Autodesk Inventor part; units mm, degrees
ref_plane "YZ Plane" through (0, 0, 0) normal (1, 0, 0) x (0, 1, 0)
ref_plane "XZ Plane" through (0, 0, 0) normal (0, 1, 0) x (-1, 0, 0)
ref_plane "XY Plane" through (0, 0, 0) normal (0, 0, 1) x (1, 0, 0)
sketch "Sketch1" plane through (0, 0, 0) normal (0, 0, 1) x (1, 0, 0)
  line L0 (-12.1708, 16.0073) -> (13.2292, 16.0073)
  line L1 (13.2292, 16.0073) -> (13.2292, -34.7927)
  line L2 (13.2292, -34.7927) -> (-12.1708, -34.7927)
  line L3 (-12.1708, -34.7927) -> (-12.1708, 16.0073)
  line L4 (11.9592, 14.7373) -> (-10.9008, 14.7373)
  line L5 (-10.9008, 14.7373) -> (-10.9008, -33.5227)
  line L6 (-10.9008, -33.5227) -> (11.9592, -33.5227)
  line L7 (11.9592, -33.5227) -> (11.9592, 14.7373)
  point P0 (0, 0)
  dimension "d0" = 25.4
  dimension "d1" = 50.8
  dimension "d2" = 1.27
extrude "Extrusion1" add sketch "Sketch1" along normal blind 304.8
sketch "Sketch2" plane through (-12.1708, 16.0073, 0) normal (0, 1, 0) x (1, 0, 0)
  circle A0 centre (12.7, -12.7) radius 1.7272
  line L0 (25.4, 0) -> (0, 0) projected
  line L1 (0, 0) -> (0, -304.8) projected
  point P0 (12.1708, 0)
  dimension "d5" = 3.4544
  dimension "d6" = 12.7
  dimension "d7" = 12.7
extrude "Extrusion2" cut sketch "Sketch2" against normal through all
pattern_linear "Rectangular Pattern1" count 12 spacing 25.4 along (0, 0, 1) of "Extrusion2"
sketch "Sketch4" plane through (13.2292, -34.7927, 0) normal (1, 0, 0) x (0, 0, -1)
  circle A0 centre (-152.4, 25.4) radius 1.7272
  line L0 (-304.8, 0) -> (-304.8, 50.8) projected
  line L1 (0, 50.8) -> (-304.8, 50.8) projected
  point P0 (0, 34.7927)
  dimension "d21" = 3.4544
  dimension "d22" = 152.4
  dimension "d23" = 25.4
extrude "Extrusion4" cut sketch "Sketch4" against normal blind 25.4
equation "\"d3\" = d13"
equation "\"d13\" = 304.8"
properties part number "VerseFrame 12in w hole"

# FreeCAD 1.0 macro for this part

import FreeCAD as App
import Part
import Sketcher
Q = App.Units.Quantity


def add_polygon(sketch, points):
    """Adds a closed chain of lines whose ends are joined by coincident constraints."""
    first, n = sketch.GeometryCount, len(points)
    for a, b in zip(points, points[1:] + points[:1]):
        sketch.addGeometry(Part.LineSegment(App.Vector(*a, 0), App.Vector(*b, 0)), False)
    for i in range(n):
        sketch.addConstraint(Sketcher.Constraint("Coincident", first + i, 2, first + (i + 1) % n, 1))

doc = App.newDocument("Part")
body = doc.addObject("PartDesign::Body", "Body")

# Sketch on XY plane
sketch1 = body.newObject("Sketcher::SketchObject", "Sketch")
sketch1.AttachmentSupport = (doc.getObject("XY_Plane"), [""])
sketch1.MapMode = "FlatFace"
add_polygon(sketch1, [(13.2292, 16.0073), (-12.1708, 16.0073), (-12.1708, -34.7927), (13.2292, -34.7927)])  # lines 0-3
add_polygon(sketch1, [(-10.9008, 14.7373), (11.9592, 14.7373), (11.9592, -33.5227), (-10.9008, -33.5227)])  # lines 4-7
sketch1.addConstraint(Sketcher.Constraint("Horizontal", 0))
sketch1.addConstraint(Sketcher.Constraint("Vertical", 1))
sketch1.addConstraint(Sketcher.Constraint("Horizontal", 2))
sketch1.addConstraint(Sketcher.Constraint("Vertical", 3))
sketch1.addConstraint(Sketcher.Constraint("Horizontal", 4))
sketch1.addConstraint(Sketcher.Constraint("Vertical", 5))
sketch1.addConstraint(Sketcher.Constraint("Horizontal", 6))
sketch1.addConstraint(Sketcher.Constraint("Vertical", 7))
sketch1.addConstraint(Sketcher.Constraint("DistanceX", 0, 2, 0, 1, Q("1 in")))
sketch1.addConstraint(Sketcher.Constraint("DistanceY", 1, 2, 1, 1, Q("2 in")))
sketch1.addConstraint(Sketcher.Constraint("DistanceX", 4, 2, 3, 2, Q("0.05 in")))
sketch1.addConstraint(Sketcher.Constraint("DistanceY", 4, 2, 3, 2, Q("0.05 in")))
sketch1.addConstraint(Sketcher.Constraint("DistanceY", 2, 2, 5, 2, Q("0.05 in")))
sketch1.addConstraint(Sketcher.Constraint("DistanceX", 1, 2, 6, 2, Q("0.05 in")))
sketch1.addConstraint(Sketcher.Constraint("DistanceY", -1, 1, 0, 2, Q("0.6302 in")))
sketch1.addConstraint(Sketcher.Constraint("DistanceX", 0, 2, -1, 1, 12.1708))
pad1 = body.newObject("PartDesign::Pad", "Pad")
pad1.Profile = sketch1
pad1.Length = Q("12 in")

# Sketch on XZ plane
sketch2 = body.newObject("Sketcher::SketchObject", "Sketch001")
sketch2.AttachmentSupport = (doc.getObject("XZ_Plane"), [""])
sketch2.MapMode = "FlatFace"
sketch2.AttachmentOffset = App.Placement(App.Vector(0, 0, -0.6302087 * 25.4), App.Rotation())
sketch2.addGeometry(Part.Circle(App.Vector(0.5292, 12.7, 0), App.Vector(0, 0, 1), 1.7272), False)
sketch2.addConstraint(Sketcher.Constraint("Diameter", 0, Q("0.136 in")))
sketch2.addConstraint(Sketcher.Constraint("DistanceY", -1, 1, 0, 3, Q("0.5 in")))
sketch2.addConstraint(Sketcher.Constraint("DistanceX", -1, 1, 0, 3, 0.5292))
pocket1 = body.newObject("PartDesign::Pocket", "Pocket")
pocket1.Profile = sketch2
pocket1.Type = "ThroughAll"
pocket1.Reversed = True
doc.recompute()

linearpattern = body.newObject("PartDesign::LinearPattern", "LinearPattern")
linearpattern.Originals = [pocket1]
linearpattern.Direction = (doc.getObject("Z_Axis"), [""])
linearpattern.Mode = "offset"
linearpattern.Offset = Q("1 in")
linearpattern.Occurrences = 12
body.Tip = linearpattern

# Sketch on YZ plane
sketch3 = body.newObject("Sketcher::SketchObject", "Sketch002")
sketch3.AttachmentSupport = (doc.getObject("YZ_Plane"), [""])
sketch3.MapMode = "FlatFace"
sketch3.AttachmentOffset = App.Placement(App.Vector(0, 0, 13.2292), App.Rotation())
sketch3.addGeometry(Part.Circle(App.Vector(-9.3927, 152.4, 0), App.Vector(0, 0, 1), 1.7272), False)
sketch3.addConstraint(Sketcher.Constraint("Diameter", 0, Q("0.136 in")))
sketch3.addConstraint(Sketcher.Constraint("DistanceY", -1, 1, 0, 3, Q("6 in")))
sketch3.addConstraint(Sketcher.Constraint("DistanceX", 0, 3, -1, 1, Q("0.3698 in")))
pocket2 = body.newObject("PartDesign::Pocket", "Pocket001")
pocket2.Profile = sketch3
pocket2.Length = Q("1 in")

doc.recompute()
